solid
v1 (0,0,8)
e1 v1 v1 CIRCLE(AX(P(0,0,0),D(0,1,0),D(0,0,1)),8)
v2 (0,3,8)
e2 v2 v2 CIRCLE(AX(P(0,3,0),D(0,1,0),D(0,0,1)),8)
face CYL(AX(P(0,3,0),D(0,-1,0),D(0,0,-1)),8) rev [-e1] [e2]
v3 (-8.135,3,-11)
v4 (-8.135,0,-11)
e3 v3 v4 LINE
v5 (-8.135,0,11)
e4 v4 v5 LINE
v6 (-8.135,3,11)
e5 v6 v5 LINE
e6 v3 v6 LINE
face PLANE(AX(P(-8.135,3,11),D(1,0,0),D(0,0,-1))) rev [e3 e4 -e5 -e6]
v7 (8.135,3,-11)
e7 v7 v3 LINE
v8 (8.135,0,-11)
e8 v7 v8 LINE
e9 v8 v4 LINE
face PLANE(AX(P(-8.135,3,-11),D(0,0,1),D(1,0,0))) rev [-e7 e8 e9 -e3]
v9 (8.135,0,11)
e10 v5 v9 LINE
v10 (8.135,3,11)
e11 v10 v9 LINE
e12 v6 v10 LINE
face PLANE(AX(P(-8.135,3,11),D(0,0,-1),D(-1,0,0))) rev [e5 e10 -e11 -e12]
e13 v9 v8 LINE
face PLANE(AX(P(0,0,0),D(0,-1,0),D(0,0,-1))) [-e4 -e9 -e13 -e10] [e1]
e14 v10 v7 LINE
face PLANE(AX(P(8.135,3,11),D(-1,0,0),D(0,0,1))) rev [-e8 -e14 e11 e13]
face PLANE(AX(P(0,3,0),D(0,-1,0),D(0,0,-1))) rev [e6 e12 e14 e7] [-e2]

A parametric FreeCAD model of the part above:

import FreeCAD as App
import Part
import Sketcher
from FreeCAD import Vector


def add_polygon(sketch, points):
    """Adds a closed chain of lines whose ends are joined by coincident constraints."""
    first, n = sketch.GeometryCount, len(points)
    for a, b in zip(points, points[1:] + points[:1]):
        sketch.addGeometry(Part.LineSegment(App.Vector(*a, 0), App.Vector(*b, 0)), False)
    for i in range(n):
        sketch.addConstraint(Sketcher.Constraint("Coincident", first + i, 2, first + (i + 1) % n, 1))

doc = App.newDocument("Part")
body = doc.addObject("PartDesign::Body", "Body")

# Sketch on XZ plane
sketch1 = body.newObject("Sketcher::SketchObject", "Sketch")
sketch1.AttachmentSupport = (doc.getObject("XZ_Plane"), [""])
sketch1.MapMode = "FlatFace"
add_polygon(sketch1, [(-8, -11), (-8, 11), (8, 11), (8, -11)])  # lines 0-3
sketch1.addGeometry(Part.Circle(Vector(0, 0, 0), Vector(0, 0, 1), 8), False)  # 4
sketch1.addConstraint(Sketcher.Constraint("Vertical", 0))
sketch1.addConstraint(Sketcher.Constraint("Horizontal", 1))
sketch1.addConstraint(Sketcher.Constraint("Vertical", 2))
sketch1.addConstraint(Sketcher.Constraint("Horizontal", 3))
sketch1.addConstraint(Sketcher.Constraint("Coincident", 4, 3, -1, 1))
sketch1.addConstraint(Sketcher.Constraint("Symmetric", 0, 2, 2, 2, -1, 1))
sketch1.addConstraint(Sketcher.Constraint("Diameter", 4, 16.0))
sketch1.addConstraint(Sketcher.Constraint("DistanceY", 0, 1, 0, 2, 22.0))
sketch1.addConstraint(Sketcher.Constraint("DistanceX", 1, 1, 1, 2, 16.27))
pad1 = body.newObject("PartDesign::Pad", "Pad")
pad1.Profile = sketch1
pad1.Length = 3
pad1.Reversed = True

doc.recompute()
